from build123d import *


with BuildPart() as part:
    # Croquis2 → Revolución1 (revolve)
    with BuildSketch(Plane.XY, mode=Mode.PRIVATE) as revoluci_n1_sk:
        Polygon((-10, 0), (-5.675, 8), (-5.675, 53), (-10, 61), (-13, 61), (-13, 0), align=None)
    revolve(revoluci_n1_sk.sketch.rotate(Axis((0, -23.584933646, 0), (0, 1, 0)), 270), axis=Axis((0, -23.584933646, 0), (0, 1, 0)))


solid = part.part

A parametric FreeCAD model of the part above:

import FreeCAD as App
import Part
import Sketcher
Q = App.Units.Quantity


def add_polygon(sketch, points):
    """Adds a closed chain of lines whose ends are joined by coincident constraints."""
    first, n = sketch.GeometryCount, len(points)
    for a, b in zip(points, points[1:] + points[:1]):
        sketch.addGeometry(Part.LineSegment(App.Vector(*a, 0), App.Vector(*b, 0)), False)
    for i in range(n):
        sketch.addConstraint(Sketcher.Constraint("Coincident", first + i, 2, first + (i + 1) % n, 1))

doc = App.newDocument("Part")
body = doc.addObject("PartDesign::Body", "Body")

sketch1 = doc.addObject("Sketcher::SketchObject", "Sketch")
body.addObject(sketch1)
sketch1.AttachmentSupport = (doc.XY_Plane, [""])
sketch1.MapMode = "FlatFace"
add_polygon(sketch1, [(-10, 0), (-5.7, 8), (-5.7, 53), (-10, 61), (-13, 61), (-13, 0)])
sketch1.addConstraint([
    Sketcher.Constraint("Vertical", 1),
    Sketcher.Constraint("Horizontal", 3),
    Sketcher.Constraint("Vertical", 4),
    Sketcher.Constraint("Horizontal", 5),
    Sketcher.Constraint("PointOnObject", 4, 2, -1),
    Sketcher.Constraint("Vertical", 2, 2, 5, 2),
    Sketcher.Constraint("Equal", 0, 2),
    Sketcher.Constraint("DistanceX", 3, 2, 3, 1, Q("3 mm")),
    Sketcher.Constraint("DistanceY", 1, 1, 1, 2, Q("45 mm")),
    Sketcher.Constraint("DistanceY", 4, 2, 4, 1, Q("61 mm")),
    Sketcher.Constraint("DistanceX", 2, 2, -1, 1, Q("10 mm")),
    Sketcher.Constraint("DistanceX", 0, 2, -1, 1, Q("5.675 mm")),
])
revolution = doc.addObject("PartDesign::Revolution", "Revolution")
body.addObject(revolution)
revolution.Profile = sketch1
revolution.ReferenceAxis = (sketch1, ["V_Axis"])
revolution.Angle = 360

doc.recompute()
